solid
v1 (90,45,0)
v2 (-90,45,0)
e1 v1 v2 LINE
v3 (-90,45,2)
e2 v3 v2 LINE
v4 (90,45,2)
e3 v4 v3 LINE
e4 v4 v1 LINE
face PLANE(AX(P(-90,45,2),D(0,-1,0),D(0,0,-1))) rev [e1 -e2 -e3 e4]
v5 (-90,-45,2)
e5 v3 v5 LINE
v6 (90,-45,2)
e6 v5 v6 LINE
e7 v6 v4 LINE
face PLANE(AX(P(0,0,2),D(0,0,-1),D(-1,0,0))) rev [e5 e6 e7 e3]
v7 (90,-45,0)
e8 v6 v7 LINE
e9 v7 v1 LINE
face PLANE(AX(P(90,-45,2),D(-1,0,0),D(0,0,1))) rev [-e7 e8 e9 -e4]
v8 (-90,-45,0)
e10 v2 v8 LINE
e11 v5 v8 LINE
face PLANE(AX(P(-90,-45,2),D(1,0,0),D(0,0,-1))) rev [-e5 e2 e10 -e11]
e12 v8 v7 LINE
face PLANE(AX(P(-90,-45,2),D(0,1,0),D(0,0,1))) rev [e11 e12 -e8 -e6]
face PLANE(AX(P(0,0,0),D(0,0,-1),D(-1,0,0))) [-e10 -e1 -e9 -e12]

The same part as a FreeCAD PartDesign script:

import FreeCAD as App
import Part
import Sketcher
from FreeCAD import Vector
Q = App.Units.Quantity


def add_polygon(sketch, points):
    """Adds a closed chain of lines whose ends are joined by coincident constraints."""
    first, n = sketch.GeometryCount, len(points)
    for a, b in zip(points, points[1:] + points[:1]):
        sketch.addGeometry(Part.LineSegment(App.Vector(*a, 0), App.Vector(*b, 0)), False)
    for i in range(n):
        sketch.addConstraint(Sketcher.Constraint("Coincident", first + i, 2, first + (i + 1) % n, 1))

doc = App.newDocument("Part")
params = doc.addObject("Spreadsheet::Sheet", "Params")
for row, (alias, value) in enumerate([
    ("sketch1_width", "180 mm"),
    ("sketch1_height", "90 mm"),
    ("pad1_length", "2 mm"),
], start=1):
    params.set(f"A{row}", alias)
    params.set(f"B{row}", "=" + value)
    params.setAlias(f"B{row}", alias)

body = doc.addObject("PartDesign::Body", "Body")

# Sketch on XY plane
sketch1 = body.newObject("Sketcher::SketchObject", "Sketch")
sketch1.AttachmentSupport = (doc.getObject("XY_Plane"), [""])
sketch1.MapMode = "FlatFace"
add_polygon(sketch1, [(-90, 45), (-90, -45), (90, -45), (90, 45)])  # lines 0-3
sketch1.addConstraint(Sketcher.Constraint("Vertical", 0))
sketch1.addConstraint(Sketcher.Constraint("Horizontal", 1))
sketch1.addConstraint(Sketcher.Constraint("Vertical", 2))
sketch1.addConstraint(Sketcher.Constraint("Horizontal", 3))
sketch1.addConstraint(Sketcher.Constraint("Symmetric", 0, 2, 2, 2, -1, 1))
sketch1.addConstraint(Sketcher.Constraint("DistanceX", 1, 1, 1, 2, Q("180 mm")))
sketch1.addConstraint(Sketcher.Constraint("DistanceY", 0, 2, 0, 1, Q("90 mm")))
sketch1.setExpression("Constraints[9]", "Params.sketch1_width")
sketch1.setExpression("Constraints[10]", "Params.sketch1_height")
pad1 = body.newObject("PartDesign::Pad", "Pad")
pad1.Profile = sketch1
pad1.setExpression("Length", "Params.pad1_length")

doc.recompute()
